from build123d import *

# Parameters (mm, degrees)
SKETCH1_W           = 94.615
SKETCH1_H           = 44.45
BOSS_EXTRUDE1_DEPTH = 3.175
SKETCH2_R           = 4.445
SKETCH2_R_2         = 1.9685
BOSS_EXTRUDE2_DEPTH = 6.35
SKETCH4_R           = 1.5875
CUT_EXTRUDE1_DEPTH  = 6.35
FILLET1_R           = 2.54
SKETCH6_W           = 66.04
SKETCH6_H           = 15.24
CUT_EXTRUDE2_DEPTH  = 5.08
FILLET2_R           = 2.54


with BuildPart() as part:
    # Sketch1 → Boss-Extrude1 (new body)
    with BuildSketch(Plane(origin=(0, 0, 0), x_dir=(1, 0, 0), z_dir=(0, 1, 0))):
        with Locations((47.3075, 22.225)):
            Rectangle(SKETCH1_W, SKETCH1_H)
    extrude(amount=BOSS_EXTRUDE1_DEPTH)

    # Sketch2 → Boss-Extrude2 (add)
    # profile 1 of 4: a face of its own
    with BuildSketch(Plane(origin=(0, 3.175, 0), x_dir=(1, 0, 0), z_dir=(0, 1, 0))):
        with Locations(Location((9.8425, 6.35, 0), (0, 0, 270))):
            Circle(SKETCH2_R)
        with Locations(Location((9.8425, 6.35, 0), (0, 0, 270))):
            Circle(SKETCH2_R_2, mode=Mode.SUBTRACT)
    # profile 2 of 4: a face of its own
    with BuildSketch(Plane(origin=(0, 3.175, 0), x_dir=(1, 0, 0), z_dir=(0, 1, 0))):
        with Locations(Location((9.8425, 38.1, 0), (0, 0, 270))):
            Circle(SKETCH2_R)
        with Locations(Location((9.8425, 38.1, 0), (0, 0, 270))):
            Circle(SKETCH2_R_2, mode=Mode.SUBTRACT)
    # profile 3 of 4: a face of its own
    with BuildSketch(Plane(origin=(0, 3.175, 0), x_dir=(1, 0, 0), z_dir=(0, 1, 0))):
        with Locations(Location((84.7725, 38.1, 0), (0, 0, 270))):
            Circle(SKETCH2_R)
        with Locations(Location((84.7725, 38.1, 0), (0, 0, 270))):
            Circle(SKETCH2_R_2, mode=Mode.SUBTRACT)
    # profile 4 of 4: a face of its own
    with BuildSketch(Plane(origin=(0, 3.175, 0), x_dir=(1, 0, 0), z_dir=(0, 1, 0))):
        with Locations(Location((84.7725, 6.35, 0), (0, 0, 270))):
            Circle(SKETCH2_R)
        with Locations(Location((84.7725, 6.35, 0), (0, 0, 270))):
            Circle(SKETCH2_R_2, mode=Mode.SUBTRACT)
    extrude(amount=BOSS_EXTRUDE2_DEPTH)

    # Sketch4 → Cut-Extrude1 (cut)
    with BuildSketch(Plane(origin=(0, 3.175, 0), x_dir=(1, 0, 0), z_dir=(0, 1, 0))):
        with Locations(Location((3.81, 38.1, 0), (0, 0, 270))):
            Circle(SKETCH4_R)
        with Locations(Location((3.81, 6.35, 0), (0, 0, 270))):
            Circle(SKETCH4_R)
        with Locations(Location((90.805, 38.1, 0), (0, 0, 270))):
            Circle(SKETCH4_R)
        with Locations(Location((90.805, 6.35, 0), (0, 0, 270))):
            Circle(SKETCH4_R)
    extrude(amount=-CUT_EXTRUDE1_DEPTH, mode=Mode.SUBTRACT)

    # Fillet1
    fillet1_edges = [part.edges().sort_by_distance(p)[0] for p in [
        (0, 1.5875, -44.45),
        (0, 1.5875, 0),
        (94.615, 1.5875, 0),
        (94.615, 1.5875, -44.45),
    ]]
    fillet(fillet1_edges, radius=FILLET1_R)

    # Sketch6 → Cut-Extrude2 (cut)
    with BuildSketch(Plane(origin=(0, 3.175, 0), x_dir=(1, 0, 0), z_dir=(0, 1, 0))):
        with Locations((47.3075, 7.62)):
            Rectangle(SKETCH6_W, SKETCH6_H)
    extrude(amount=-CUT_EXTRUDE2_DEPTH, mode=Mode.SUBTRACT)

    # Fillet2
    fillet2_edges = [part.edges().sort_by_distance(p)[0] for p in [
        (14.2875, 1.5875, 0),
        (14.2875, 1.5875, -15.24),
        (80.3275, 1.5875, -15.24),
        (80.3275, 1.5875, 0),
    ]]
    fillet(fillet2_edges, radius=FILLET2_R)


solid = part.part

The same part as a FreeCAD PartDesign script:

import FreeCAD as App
import Part
import Sketcher
from FreeCAD import Vector
Q = App.Units.Quantity


def edges_at(feature, points):
    """Names of the edges that pass closest to the given points."""
    edges = feature.Shape.Edges
    near = lambda p: min(range(len(edges)), key=lambda i: edges[i].distToShape(Part.Vertex(*p))[0])
    return sorted({f"Edge{near(p) + 1}" for p in points})

doc = App.newDocument("Part")
params = doc.addObject("Spreadsheet::Sheet", "Params")
for row, (alias, value) in enumerate([
    ("sketch1_height", "1.75 in"),
    ("sketch1_width", "3.725 in"),
    ("pad1_length", "0.125 in"),
    ("sketch2_diameter", "0.35 in"),
    ("sketch2_diameter2", "0.155 in"),
    ("pad2_length", "0.25 in"),
    ("sketch3_diameter", "0.125 in"),
    ("pocket1_length", "0.25 in"),
    ("fillet_radius", "0.1 in"),
    ("sketch4_width", "2.6 in"),
    ("sketch4_height", "0.6 in"),
    ("pocket2_length", "0.2 in"),
    ("fillet2_radius", "0.1 in"),
], start=1):
    params.set(f"A{row}", alias)
    params.set(f"B{row}", "=" + value)
    params.setAlias(f"B{row}", alias)

body = doc.addObject("PartDesign::Body", "Body")

# Sketch on XZ plane
sketch1 = body.newObject("Sketcher::SketchObject", "Sketch")
sketch1.AttachmentSupport = (doc.getObject("XZ_Plane"), [""])
sketch1.MapMode = "FlatFace"
sketch1.addGeometry(Part.LineSegment(Vector(0, -44, 0), Vector(0, 0, 0)), False)
sketch1.addGeometry(Part.LineSegment(Vector(0, 0, 0), Vector(95, 0, 0)), False)
sketch1.addGeometry(Part.LineSegment(Vector(95, 0, 0), Vector(95, -44, 0)), False)
sketch1.addGeometry(Part.LineSegment(Vector(95, -44, 0), Vector(0, -44, 0)), False)
sketch1.addConstraint(Sketcher.Constraint("Coincident", 0, 2, 1, 1))
sketch1.addConstraint(Sketcher.Constraint("Coincident", 1, 2, 2, 1))
sketch1.addConstraint(Sketcher.Constraint("Coincident", 2, 2, 3, 1))
sketch1.addConstraint(Sketcher.Constraint("Coincident", 3, 2, 0, 1))
sketch1.addConstraint(Sketcher.Constraint("Vertical", 0))
sketch1.addConstraint(Sketcher.Constraint("Horizontal", 1))
sketch1.addConstraint(Sketcher.Constraint("Vertical", 2))
sketch1.addConstraint(Sketcher.Constraint("Horizontal", 3))
sketch1.addConstraint(Sketcher.Constraint("Coincident", 0, 2, -1, 1))
sketch1.addConstraint(Sketcher.Constraint("DistanceY", 0, 1, 0, 2, Q("1.75 in")))
sketch1.addConstraint(Sketcher.Constraint("DistanceX", 1, 1, 1, 2, Q("3.725 in")))
sketch1.setExpression("Constraints[9]", "Params.sketch1_height")
sketch1.setExpression("Constraints[10]", "Params.sketch1_width")
pad1 = body.newObject("PartDesign::Pad", "Pad")
pad1.Profile = sketch1
pad1.setExpression("Length", "Params.pad1_length")
pad1.Reversed = True

# Sketch on XZ plane
sketch2 = body.newObject("Sketcher::SketchObject", "Sketch001")
sketch2.AttachmentSupport = (doc.getObject("XZ_Plane"), [""])
sketch2.MapMode = "FlatFace"
sketch2.AttachmentOffset = App.Placement(Vector(0, 0, -0.125 * 25.4), App.Rotation())
sketch2.addGeometry(Part.Circle(Vector(9.8, -6.3, 0), Vector(0, 0, 1), 4.4), False)
sketch2.addGeometry(Part.Circle(Vector(9.8, -6.3, 0), Vector(0, 0, 1), 2), False)
sketch2.addGeometry(Part.Circle(Vector(9.8, -38.1, 0), Vector(0, 0, 1), 4.4), False)
sketch2.addGeometry(Part.Circle(Vector(9.8, -38.1, 0), Vector(0, 0, 1), 2), False)
sketch2.addGeometry(Part.Circle(Vector(84.8, -38.1, 0), Vector(0, 0, 1), 4.4), False)
sketch2.addGeometry(Part.Circle(Vector(84.8, -38.1, 0), Vector(0, 0, 1), 2), False)
sketch2.addGeometry(Part.Circle(Vector(84.8, -6.3, 0), Vector(0, 0, 1), 4.4), False)
sketch2.addGeometry(Part.Circle(Vector(84.8, -6.3, 0), Vector(0, 0, 1), 2), False)
sketch2.addConstraint(Sketcher.Constraint("Coincident", 1, 3, 0, 3))
sketch2.addConstraint(Sketcher.Constraint("Coincident", 3, 3, 2, 3))
sketch2.addConstraint(Sketcher.Constraint("Coincident", 5, 3, 4, 3))
sketch2.addConstraint(Sketcher.Constraint("Coincident", 7, 3, 6, 3))
sketch2.addConstraint(Sketcher.Constraint("Equal", 0, 2))
sketch2.addConstraint(Sketcher.Constraint("Equal", 1, 3))
sketch2.addConstraint(Sketcher.Constraint("Equal", 2, 4))
sketch2.addConstraint(Sketcher.Constraint("Equal", 3, 5))
sketch2.addConstraint(Sketcher.Constraint("Equal", 4, 6))
sketch2.addConstraint(Sketcher.Constraint("Equal", 5, 7))
sketch2.addConstraint(Sketcher.Constraint("Horizontal", 3, 3, 4, 3))
sketch2.addConstraint(Sketcher.Constraint("Horizontal", 1, 3, 6, 3))
sketch2.addConstraint(Sketcher.Constraint("Vertical", 1, 3, 2, 3))
sketch2.addConstraint(Sketcher.Constraint("Vertical", 5, 3, 6, 3))
sketch2.addConstraint(Sketcher.Constraint("Diameter", 0, Q("0.35 in")))
sketch2.addConstraint(Sketcher.Constraint("Diameter", 1, Q("0.155 in")))
sketch2.addConstraint(Sketcher.Constraint("DistanceY", 2, 3, -1, 1, Q("1.5 in")))
sketch2.addConstraint(Sketcher.Constraint("DistanceY", 0, 3, -1, 1, Q("0.25 in")))
sketch2.addConstraint(Sketcher.Constraint("DistanceX", 2, 3, 4, 3, Q("2.95 in")))
sketch2.addConstraint(Sketcher.Constraint("DistanceX", -1, 1, 0, 3, Q("0.3875 in")))
sketch2.setExpression("Constraints[14]", "Params.sketch2_diameter")
sketch2.setExpression("Constraints[15]", "Params.sketch2_diameter2")
pad2 = body.newObject("PartDesign::Pad", "Pad001")
pad2.Profile = sketch2
pad2.setExpression("Length", "Params.pad2_length")
pad2.Reversed = True

# Sketch on XZ plane
sketch3 = body.newObject("Sketcher::SketchObject", "Sketch002")
sketch3.AttachmentSupport = (doc.getObject("XZ_Plane"), [""])
sketch3.MapMode = "FlatFace"
sketch3.AttachmentOffset = App.Placement(Vector(0, 0, -0.125 * 25.4), App.Rotation())
sketch3.addGeometry(Part.Circle(Vector(3.8, -38.1, 0), Vector(0, 0, 1), 1.6), False)
sketch3.addGeometry(Part.Circle(Vector(3.8, -6.3, 0), Vector(0, 0, 1), 1.6), False)
sketch3.addGeometry(Part.Circle(Vector(90.8, -38.1, 0), Vector(0, 0, 1), 1.6), False)
sketch3.addGeometry(Part.Circle(Vector(90.8, -6.3, 0), Vector(0, 0, 1), 1.6), False)
sketch3.addConstraint(Sketcher.Constraint("Equal", 0, 1))
sketch3.addConstraint(Sketcher.Constraint("Equal", 1, 2))
sketch3.addConstraint(Sketcher.Constraint("Equal", 2, 3))
sketch3.addConstraint(Sketcher.Constraint("Horizontal", 0, 3, 2, 3))
sketch3.addConstraint(Sketcher.Constraint("Horizontal", 1, 3, 3, 3))
sketch3.addConstraint(Sketcher.Constraint("Vertical", 0, 3, 1, 3))
sketch3.addConstraint(Sketcher.Constraint("Vertical", 2, 3, 3, 3))
sketch3.addConstraint(Sketcher.Constraint("Diameter", 0, Q("0.125 in")))
sketch3.addConstraint(Sketcher.Constraint("DistanceY", 0, 3, -1, 1, Q("1.5 in")))
sketch3.addConstraint(Sketcher.Constraint("DistanceX", -1, 1, 0, 3, Q("0.15 in")))
sketch3.addConstraint(Sketcher.Constraint("DistanceY", 1, 3, -1, 1, Q("0.25 in")))
sketch3.addConstraint(Sketcher.Constraint("DistanceX", -1, 1, 2, 3, Q("3.575 in")))
sketch3.setExpression("Constraints[7]", "Params.sketch3_diameter")
pocket1 = body.newObject("PartDesign::Pocket", "Pocket")
pocket1.Profile = sketch3
pocket1.setExpression("Length", "Params.pocket1_length")
pocket1.Reversed = True
doc.recompute()

fillet = body.newObject("PartDesign::Fillet", "Fillet")
fillet.Base = (pocket1, edges_at(pocket1, [
    (0, 1.587, -44.45),
    (0, 1.587, 0),
    (94.615, 1.587, 0),
    (94.615, 1.587, -44.45),
]))
fillet.setExpression("Radius", "Params.fillet_radius")

# Sketch on XZ plane
sketch4 = body.newObject("Sketcher::SketchObject", "Sketch003")
sketch4.AttachmentSupport = (doc.getObject("XZ_Plane"), [""])
sketch4.MapMode = "FlatFace"
sketch4.AttachmentOffset = App.Placement(Vector(0, 0, -0.125 * 25.4), App.Rotation())
sketch4.addGeometry(Part.LineSegment(Vector(14, -15, 0), Vector(14, 0, 0)), False)
sketch4.addGeometry(Part.LineSegment(Vector(14, 0, 0), Vector(80, 0, 0)), False)
sketch4.addGeometry(Part.LineSegment(Vector(80, 0, 0), Vector(80, -15, 0)), False)
sketch4.addGeometry(Part.LineSegment(Vector(80, -15, 0), Vector(14, -15, 0)), False)
sketch4.addConstraint(Sketcher.Constraint("Coincident", 0, 2, 1, 1))
sketch4.addConstraint(Sketcher.Constraint("Coincident", 1, 2, 2, 1))
sketch4.addConstraint(Sketcher.Constraint("Coincident", 2, 2, 3, 1))
sketch4.addConstraint(Sketcher.Constraint("Coincident", 3, 2, 0, 1))
sketch4.addConstraint(Sketcher.Constraint("Vertical", 0))
sketch4.addConstraint(Sketcher.Constraint("Horizontal", 1))
sketch4.addConstraint(Sketcher.Constraint("Vertical", 2))
sketch4.addConstraint(Sketcher.Constraint("Horizontal", 3))
sketch4.addConstraint(Sketcher.Constraint("PointOnObject", 0, 2, -1))
sketch4.addConstraint(Sketcher.Constraint("DistanceX", 1, 1, 1, 2, Q("2.6 in")))
sketch4.addConstraint(Sketcher.Constraint("DistanceY", 0, 1, 0, 2, Q("0.6 in")))
sketch4.addConstraint(Sketcher.Constraint("DistanceX", -1, 1, 0, 2, Q("0.5625 in")))
sketch4.setExpression("Constraints[9]", "Params.sketch4_width")
sketch4.setExpression("Constraints[10]", "Params.sketch4_height")
pocket2 = body.newObject("PartDesign::Pocket", "Pocket001")
pocket2.Profile = sketch4
pocket2.setExpression("Length", "Params.pocket2_length")
pocket2.Reversed = True
doc.recompute()

fillet2 = body.newObject("PartDesign::Fillet", "Fillet001")
fillet2.Base = (pocket2, edges_at(pocket2, [
    (14.287, 1.587, 0),
    (14.287, 1.587, -15.24),
    (80.328, 1.587, -15.24),
    (80.328, 1.587, 0),
]))
fillet2.setExpression("Radius", "Params.fillet2_radius")

doc.recompute()
